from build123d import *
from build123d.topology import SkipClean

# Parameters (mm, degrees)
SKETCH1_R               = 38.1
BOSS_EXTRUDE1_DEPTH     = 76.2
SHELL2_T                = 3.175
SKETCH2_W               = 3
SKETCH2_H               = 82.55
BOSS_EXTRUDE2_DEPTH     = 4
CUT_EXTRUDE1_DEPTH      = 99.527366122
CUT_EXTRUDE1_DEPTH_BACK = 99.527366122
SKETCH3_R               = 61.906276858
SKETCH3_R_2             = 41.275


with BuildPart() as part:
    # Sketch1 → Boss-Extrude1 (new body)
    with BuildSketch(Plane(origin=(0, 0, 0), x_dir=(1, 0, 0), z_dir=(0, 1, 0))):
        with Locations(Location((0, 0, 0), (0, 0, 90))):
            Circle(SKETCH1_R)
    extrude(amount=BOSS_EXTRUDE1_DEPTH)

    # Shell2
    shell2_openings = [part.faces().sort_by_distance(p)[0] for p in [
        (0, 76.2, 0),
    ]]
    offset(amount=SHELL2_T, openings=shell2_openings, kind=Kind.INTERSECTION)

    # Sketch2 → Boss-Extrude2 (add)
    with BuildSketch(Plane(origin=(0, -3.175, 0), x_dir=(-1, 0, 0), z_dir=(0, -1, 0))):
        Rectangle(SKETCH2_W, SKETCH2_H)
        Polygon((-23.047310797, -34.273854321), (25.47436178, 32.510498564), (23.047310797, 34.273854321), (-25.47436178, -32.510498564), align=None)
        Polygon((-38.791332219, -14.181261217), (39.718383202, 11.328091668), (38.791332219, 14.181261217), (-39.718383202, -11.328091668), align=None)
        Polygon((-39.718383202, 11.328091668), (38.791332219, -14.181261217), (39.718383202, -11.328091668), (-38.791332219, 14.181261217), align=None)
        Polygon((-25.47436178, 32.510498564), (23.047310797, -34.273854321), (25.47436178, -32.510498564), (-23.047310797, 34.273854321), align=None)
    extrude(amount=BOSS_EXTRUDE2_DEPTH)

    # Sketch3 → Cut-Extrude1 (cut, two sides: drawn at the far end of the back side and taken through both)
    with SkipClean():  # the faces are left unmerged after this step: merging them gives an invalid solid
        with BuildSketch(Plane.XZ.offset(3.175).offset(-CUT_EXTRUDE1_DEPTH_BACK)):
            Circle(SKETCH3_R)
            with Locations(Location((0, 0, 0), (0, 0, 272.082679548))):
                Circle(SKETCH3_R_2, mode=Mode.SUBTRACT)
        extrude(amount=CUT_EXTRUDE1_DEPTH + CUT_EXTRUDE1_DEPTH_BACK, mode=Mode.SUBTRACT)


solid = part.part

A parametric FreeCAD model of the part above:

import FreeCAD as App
import Part
import Sketcher
Q = App.Units.Quantity


def faces_at(feature, points):
    """Names of the faces that lie closest to the given points."""
    faces = feature.Shape.Faces
    near = lambda p: min(range(len(faces)), key=lambda i: faces[i].distToShape(Part.Vertex(*p))[0])
    return sorted({f"Face{near(p) + 1}" for p in points})

doc = App.newDocument("Part")
body = doc.addObject("PartDesign::Body", "Body")

# Sketch on XZ plane
sketch1 = body.newObject("Sketcher::SketchObject", "Sketch")
sketch1.AttachmentSupport = (doc.getObject("XZ_Plane"), [""])
sketch1.MapMode = "FlatFace"
sketch1.addGeometry(Part.Circle(App.Vector(0, 0, 0), App.Vector(0, 0, 1), 38), False)
sketch1.addConstraint([
    Sketcher.Constraint("Coincident", 0, 3, -1, 1),
    Sketcher.Constraint("Diameter", 0, Q("3 in")),
])
pad1 = body.newObject("PartDesign::Pad", "Pad")
pad1.Profile = sketch1
pad1.Length = Q("3 in")
pad1.Reversed = True
doc.recompute()

thickness = body.newObject("PartDesign::Thickness", "Thickness")
thickness.Base = (pad1, faces_at(pad1, [(0, 76.2, 0)]))
thickness.Value = Q("0.125 in")
thickness.Reversed = False
thickness.Join = "Intersection"

# Sketch on XZ plane
sketch2 = body.newObject("Sketcher::SketchObject", "Sketch001")
sketch2.AttachmentSupport = (doc.getObject("XZ_Plane"), [""])
sketch2.MapMode = "FlatFace"
sketch2.AttachmentOffset = App.Placement(App.Vector(0, 0, 0.125 * 25.4), App.Rotation())
sketch2.addGeometry([
    Part.LineSegment(App.Vector(1.5, 4.6, 0), App.Vector(1.5, 41.3, 0)),  # 0
    Part.LineSegment(App.Vector(1.5, 41.3, 0), App.Vector(-1.5, 41.3, 0)),  # 1
    Part.LineSegment(App.Vector(-1.5, 41.3, 0), App.Vector(-1.5, 4.6, 0)),  # 2
    Part.LineSegment(App.Vector(-1.5, 4.6, 0), App.Vector(-23, 34.3, 0)),  # 3
    Part.LineSegment(App.Vector(-23, 34.3, 0), App.Vector(-25.5, 32.5, 0)),  # 4
    Part.LineSegment(App.Vector(-25.5, 32.5, 0), App.Vector(-3.9, 2.9, 0)),  # 5
    Part.LineSegment(App.Vector(-3.9, 2.9, 0), App.Vector(-38.8, 14.2, 0)),  # 6
    Part.LineSegment(App.Vector(-38.8, 14.2, 0), App.Vector(-39.7, 11.3, 0)),  # 7
    Part.LineSegment(App.Vector(-39.7, 11.3, 0), App.Vector(-4.9, 0, 0)),  # 8
    Part.LineSegment(App.Vector(-4.9, 0, 0), App.Vector(-39.7, -11.3, 0)),  # 9
    Part.LineSegment(App.Vector(-39.7, -11.3, 0), App.Vector(-38.8, -14.2, 0)),  # 10
    Part.LineSegment(App.Vector(-38.8, -14.2, 0), App.Vector(-3.9, -2.9, 0)),  # 11
    Part.LineSegment(App.Vector(-3.9, -2.9, 0), App.Vector(-25.5, -32.5, 0)),  # 12
    Part.LineSegment(App.Vector(-25.5, -32.5, 0), App.Vector(-23, -34.3, 0)),  # 13
    Part.LineSegment(App.Vector(-23, -34.3, 0), App.Vector(-1.5, -4.6, 0)),  # 14
    Part.LineSegment(App.Vector(-1.5, -4.6, 0), App.Vector(-1.5, -41.3, 0)),  # 15
    Part.LineSegment(App.Vector(-1.5, -41.3, 0), App.Vector(1.5, -41.3, 0)),  # 16
    Part.LineSegment(App.Vector(1.5, -41.3, 0), App.Vector(1.5, -4.6, 0)),  # 17
    Part.LineSegment(App.Vector(1.5, -4.6, 0), App.Vector(23, -34.3, 0)),  # 18
    Part.LineSegment(App.Vector(23, -34.3, 0), App.Vector(25.5, -32.5, 0)),  # 19
    Part.LineSegment(App.Vector(25.5, -32.5, 0), App.Vector(3.9, -2.9, 0)),  # 20
    Part.LineSegment(App.Vector(3.9, -2.9, 0), App.Vector(38.8, -14.2, 0)),  # 21
    Part.LineSegment(App.Vector(38.8, -14.2, 0), App.Vector(39.7, -11.3, 0)),  # 22
    Part.LineSegment(App.Vector(39.7, -11.3, 0), App.Vector(4.9, 0, 0)),  # 23
    Part.LineSegment(App.Vector(4.9, 0, 0), App.Vector(39.7, 11.3, 0)),  # 24
    Part.LineSegment(App.Vector(39.7, 11.3, 0), App.Vector(38.8, 14.2, 0)),  # 25
    Part.LineSegment(App.Vector(38.8, 14.2, 0), App.Vector(3.9, 2.9, 0)),  # 26
    Part.LineSegment(App.Vector(3.9, 2.9, 0), App.Vector(25.5, 32.5, 0)),  # 27
    Part.LineSegment(App.Vector(25.5, 32.5, 0), App.Vector(23, 34.3, 0)),  # 28
    Part.LineSegment(App.Vector(23, 34.3, 0), App.Vector(1.5, 4.6, 0)),  # 29
], False)
sketch2.addConstraint([
    Sketcher.Constraint("Coincident", 0, 2, 1, 1),
    Sketcher.Constraint("Coincident", 1, 2, 2, 1),
    Sketcher.Constraint("Coincident", 2, 2, 3, 1),
    Sketcher.Constraint("Coincident", 3, 2, 4, 1),
    Sketcher.Constraint("Coincident", 4, 2, 5, 1),
    Sketcher.Constraint("Coincident", 5, 2, 6, 1),
    Sketcher.Constraint("Coincident", 6, 2, 7, 1),
    Sketcher.Constraint("Coincident", 7, 2, 8, 1),
    Sketcher.Constraint("Coincident", 8, 2, 9, 1),
    Sketcher.Constraint("Coincident", 9, 2, 10, 1),
    Sketcher.Constraint("Coincident", 10, 2, 11, 1),
    Sketcher.Constraint("Coincident", 11, 2, 12, 1),
    Sketcher.Constraint("Coincident", 12, 2, 13, 1),
    Sketcher.Constraint("Coincident", 13, 2, 14, 1),
    Sketcher.Constraint("Coincident", 14, 2, 15, 1),
    Sketcher.Constraint("Coincident", 15, 2, 16, 1),
    Sketcher.Constraint("Coincident", 16, 2, 17, 1),
    Sketcher.Constraint("Coincident", 17, 2, 18, 1),
    Sketcher.Constraint("Coincident", 18, 2, 19, 1),
    Sketcher.Constraint("Coincident", 19, 2, 20, 1),
    Sketcher.Constraint("Coincident", 20, 2, 21, 1),
    Sketcher.Constraint("Coincident", 21, 2, 22, 1),
    Sketcher.Constraint("Coincident", 22, 2, 23, 1),
    Sketcher.Constraint("Coincident", 23, 2, 24, 1),
    Sketcher.Constraint("Coincident", 24, 2, 25, 1),
    Sketcher.Constraint("Coincident", 25, 2, 26, 1),
    Sketcher.Constraint("Coincident", 26, 2, 27, 1),
    Sketcher.Constraint("Coincident", 27, 2, 28, 1),
    Sketcher.Constraint("Coincident", 28, 2, 29, 1),
    Sketcher.Constraint("Coincident", 29, 2, 0, 1),
    Sketcher.Constraint("Vertical", 0),
    Sketcher.Constraint("Horizontal", 1),
    Sketcher.Constraint("Vertical", 2),
    Sketcher.Constraint("Vertical", 15),
    Sketcher.Constraint("Horizontal", 16),
    Sketcher.Constraint("Vertical", 17),
    Sketcher.Constraint("Symmetric", 0, 2, 15, 2, -1, 1),
    Sketcher.Constraint("Symmetric", 2, 2, 17, 2, -1, 1),
    Sketcher.Constraint("Symmetric", 3, 2, 18, 2, -1, 1),
    Sketcher.Constraint("Symmetric", 4, 2, 19, 2, -1, 1),
    Sketcher.Constraint("Symmetric", 5, 2, 20, 2, -1, 1),
    Sketcher.Constraint("Symmetric", 6, 2, 21, 2, -1, 1),
    Sketcher.Constraint("Symmetric", 7, 2, 22, 2, -1, 1),
    Sketcher.Constraint("Symmetric", 8, 2, 23, 2, -1, 1),
    Sketcher.Constraint("Symmetric", 9, 2, 24, 2, -1, 1),
    Sketcher.Constraint("Symmetric", 10, 2, 25, 2, -1, 1),
    Sketcher.Constraint("Symmetric", 11, 2, 26, 2, -1, 1),
    Sketcher.Constraint("Symmetric", 12, 2, 27, 2, -1, 1),
    Sketcher.Constraint("Symmetric", 13, 2, 28, 2, -1, 1),
    Sketcher.Constraint("Symmetric", 14, 2, 17, 2, -2),
    Sketcher.Constraint("Symmetric", 13, 2, 18, 2, -2),
    Sketcher.Constraint("Symmetric", 12, 2, 19, 2, -2),
    Sketcher.Constraint("Symmetric", 11, 2, 20, 2, -2),
    Sketcher.Constraint("Symmetric", 10, 2, 21, 2, -2),
    Sketcher.Constraint("Symmetric", 9, 2, 22, 2, -2),
    Sketcher.Constraint("PointOnObject", 8, 2, -1),
    Sketcher.Constraint("Perpendicular", 3, 4),
    Sketcher.Constraint("Perpendicular", 4, 5),
    Sketcher.Constraint("Perpendicular", 6, 7),
    Sketcher.Constraint("Perpendicular", 7, 8),
    Sketcher.Constraint("Perpendicular", 28, 29),
    Sketcher.Constraint("Equal", 3, 5),
    Sketcher.Constraint("Equal", 5, 6),
    Sketcher.Constraint("Equal", 4, 7),
    Sketcher.Constraint("Equal", 6, 8),
    Sketcher.Constraint("Angle", 3, Q("126 deg")),
    Sketcher.Constraint("Angle", 6, Q("162 deg")),
    Sketcher.Constraint("DistanceY", -1, 1, 0, 2, Q("1.625 in")),
    Sketcher.Constraint("DistanceX", 1, 2, 1, 1, Q("3 mm")),
    Sketcher.Constraint("Distance", 4, Q("3 mm")),
    Sketcher.Constraint("DistanceY", -1, 1, 4, 2, Q("32.510499 mm")),
])
pad2 = body.newObject("PartDesign::Pad", "Pad001")
pad2.Profile = sketch2
pad2.Length = 4

# Sketch on XZ plane
sketch3 = body.newObject("Sketcher::SketchObject", "Sketch002")
sketch3.AttachmentSupport = (doc.getObject("XZ_Plane"), [""])
sketch3.MapMode = "FlatFace"
sketch3.AttachmentOffset = App.Placement(App.Vector(0, 0, 0.125 * 25.4), App.Rotation())
sketch3.addGeometry([
    Part.Circle(App.Vector(0, 0, 0), App.Vector(0, 0, 1), 62),
    Part.Circle(App.Vector(0, 0, 0), App.Vector(0, 0, 1), 41),
], False)
sketch3.addConstraint([
    Sketcher.Constraint("Coincident", 0, 3, -1, 1),
    Sketcher.Constraint("Coincident", 1, 3, -1, 1),
    Sketcher.Constraint("Diameter", 1, Q("3.25 in")),
    Sketcher.Constraint("Diameter", 0, Q("123.812554 mm")),
])
pocket1 = body.newObject("PartDesign::Pocket", "Pocket")
pocket1.Profile = sketch3
pocket1.Type = "ThroughAll"
pocket1.Midplane = True

doc.recompute()
